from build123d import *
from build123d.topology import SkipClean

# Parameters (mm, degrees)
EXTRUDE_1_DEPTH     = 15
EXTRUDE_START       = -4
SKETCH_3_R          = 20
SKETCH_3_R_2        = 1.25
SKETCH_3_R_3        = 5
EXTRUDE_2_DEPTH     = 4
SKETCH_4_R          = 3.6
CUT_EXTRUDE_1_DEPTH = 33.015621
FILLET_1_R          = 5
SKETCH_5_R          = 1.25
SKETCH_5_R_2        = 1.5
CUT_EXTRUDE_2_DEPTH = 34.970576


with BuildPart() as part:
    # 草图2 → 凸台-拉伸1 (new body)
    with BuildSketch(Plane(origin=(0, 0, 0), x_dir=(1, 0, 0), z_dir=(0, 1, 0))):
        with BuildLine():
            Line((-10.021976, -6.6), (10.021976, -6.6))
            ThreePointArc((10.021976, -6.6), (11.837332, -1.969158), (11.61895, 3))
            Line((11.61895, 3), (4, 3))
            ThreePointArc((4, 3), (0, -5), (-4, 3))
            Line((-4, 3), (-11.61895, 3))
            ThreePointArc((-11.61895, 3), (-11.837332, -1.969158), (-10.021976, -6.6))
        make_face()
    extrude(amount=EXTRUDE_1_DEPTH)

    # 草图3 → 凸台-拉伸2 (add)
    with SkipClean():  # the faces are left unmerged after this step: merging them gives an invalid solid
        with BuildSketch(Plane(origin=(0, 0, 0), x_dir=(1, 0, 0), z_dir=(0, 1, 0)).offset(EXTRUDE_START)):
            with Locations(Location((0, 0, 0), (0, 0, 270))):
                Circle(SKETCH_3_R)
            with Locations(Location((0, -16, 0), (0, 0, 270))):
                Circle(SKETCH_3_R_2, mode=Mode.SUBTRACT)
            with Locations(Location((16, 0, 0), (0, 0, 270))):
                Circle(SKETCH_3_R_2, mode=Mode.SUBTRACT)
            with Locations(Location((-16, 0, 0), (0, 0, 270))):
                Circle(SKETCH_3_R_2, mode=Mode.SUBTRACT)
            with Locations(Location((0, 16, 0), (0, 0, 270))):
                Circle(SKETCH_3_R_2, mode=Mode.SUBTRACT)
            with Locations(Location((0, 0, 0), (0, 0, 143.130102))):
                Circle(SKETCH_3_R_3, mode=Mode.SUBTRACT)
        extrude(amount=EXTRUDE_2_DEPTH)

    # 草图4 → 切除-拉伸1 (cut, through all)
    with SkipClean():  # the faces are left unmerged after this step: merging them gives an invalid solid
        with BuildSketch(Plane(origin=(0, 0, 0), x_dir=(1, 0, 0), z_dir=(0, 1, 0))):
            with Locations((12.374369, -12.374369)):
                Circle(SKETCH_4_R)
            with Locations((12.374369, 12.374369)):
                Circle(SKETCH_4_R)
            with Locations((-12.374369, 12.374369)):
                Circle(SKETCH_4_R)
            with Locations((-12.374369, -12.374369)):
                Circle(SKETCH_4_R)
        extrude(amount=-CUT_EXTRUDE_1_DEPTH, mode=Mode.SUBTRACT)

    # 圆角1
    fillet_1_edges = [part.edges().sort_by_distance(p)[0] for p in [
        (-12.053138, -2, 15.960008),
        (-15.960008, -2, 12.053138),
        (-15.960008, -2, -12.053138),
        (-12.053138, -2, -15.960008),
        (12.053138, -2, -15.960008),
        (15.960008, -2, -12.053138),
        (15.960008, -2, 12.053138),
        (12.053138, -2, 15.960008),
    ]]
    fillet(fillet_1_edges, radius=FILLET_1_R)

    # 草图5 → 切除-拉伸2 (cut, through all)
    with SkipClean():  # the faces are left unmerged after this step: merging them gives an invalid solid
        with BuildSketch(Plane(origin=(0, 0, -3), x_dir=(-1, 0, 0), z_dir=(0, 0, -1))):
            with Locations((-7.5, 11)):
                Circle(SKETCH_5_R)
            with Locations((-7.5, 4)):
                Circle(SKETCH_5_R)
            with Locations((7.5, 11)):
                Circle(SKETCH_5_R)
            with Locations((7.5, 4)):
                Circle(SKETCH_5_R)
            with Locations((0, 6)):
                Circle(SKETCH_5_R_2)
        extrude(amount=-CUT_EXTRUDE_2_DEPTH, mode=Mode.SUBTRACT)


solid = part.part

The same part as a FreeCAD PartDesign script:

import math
import FreeCAD as App
import Part
import Sketcher

V = App.Vector


def edges_at(feature, points):
    """Names of the edges that pass closest to the given points."""
    edges = feature.Shape.Edges
    near = lambda p: min(range(len(edges)), key=lambda i: edges[i].distToShape(Part.Vertex(*p))[0])
    return sorted({f"Edge{near(p) + 1}" for p in points})

doc = App.newDocument("Part")
params = doc.addObject("Spreadsheet::Sheet", "Params")
for row, (alias, value) in enumerate([
    ("sketch1_radius", "5 mm"),
    ("pad1_length", "15 mm"),
    ("sketch2_diameter", "40 mm"),
    ("sketch2_diameter2", "10 mm"),
    ("sketch2_diameter3", "2.5 mm"),
    ("pad2_length", "4 mm"),
    ("sketch3_diameter", "7.2 mm"),
    ("fillet_radius", "5 mm"),
    ("sketch4_diameter", "3 mm"),
    ("sketch4_diameter2", "2.5 mm"),
], start=1):
    params.set(f"A{row}", alias)
    params.set(f"B{row}", "=" + value)
    params.setAlias(f"B{row}", alias)

body = doc.addObject("PartDesign::Body", "Body")

# Sketch on XZ plane
sketch1 = body.newObject("Sketcher::SketchObject", "Sketch")
sketch1.AttachmentSupport = (doc.getObject("XZ_Plane"), [""])
sketch1.MapMode = "FlatFace"
sketch1.addGeometry(Part.LineSegment(V(-10.021976, 6.6, 0), V(10.021976, 6.6, 0)), False)
sketch1.addGeometry(Part.ArcOfCircle(Part.Circle(V(0.000005, 0.000001, 0), V(0, 0, 1), 11.999995), math.radians(-14.477524), math.radians(33.367022)), False)
sketch1.addGeometry(Part.LineSegment(V(11.61895, -3, 0), V(4, -3, 0)), False)
sketch1.addGeometry(Part.ArcOfCircle(Part.Circle(V(0, 0, 0), V(0, 0, 1), 5), math.radians(-36.869898), math.radians(216.869898)), False)
sketch1.addGeometry(Part.LineSegment(V(-4, -3, 0), V(-11.61895, -3, 0)), False)
sketch1.addGeometry(Part.ArcOfCircle(Part.Circle(V(-0.000005, 0.000001, 0), V(0, 0, 1), 11.999995), math.radians(146.632978), math.radians(194.477524)), False)
sketch1.addConstraint(Sketcher.Constraint("Coincident", 0, 2, 1, 2))
sketch1.addConstraint(Sketcher.Constraint("Coincident", 1, 1, 2, 1))
sketch1.addConstraint(Sketcher.Constraint("Coincident", 2, 2, 3, 1))
sketch1.addConstraint(Sketcher.Constraint("Coincident", 3, 2, 4, 1))
sketch1.addConstraint(Sketcher.Constraint("Coincident", 4, 2, 5, 2))
sketch1.addConstraint(Sketcher.Constraint("Coincident", 5, 1, 0, 1))
sketch1.addConstraint(Sketcher.Constraint("Horizontal", 0))
sketch1.addConstraint(Sketcher.Constraint("Horizontal", 2))
sketch1.addConstraint(Sketcher.Constraint("Horizontal", 4))
sketch1.addConstraint(Sketcher.Constraint("Coincident", 1, 3, -1, 1))
sketch1.addConstraint(Sketcher.Constraint("Coincident", 3, 3, -1, 1))
sketch1.addConstraint(Sketcher.Constraint("Coincident", 5, 3, -1, 1))
sketch1.addConstraint(Sketcher.Constraint("Equal", 1, 5))
sketch1.addConstraint(Sketcher.Constraint("Horizontal", 2, 2, 3, 2))
sketch1.addConstraint(Sketcher.Constraint("Radius", 3, 5.0))
sketch1.addConstraint(Sketcher.Constraint("DistanceY", 1, 1, -1, 1, 3.0))
sketch1.addConstraint(Sketcher.Constraint("DistanceY", -1, 1, 0, 2, 6.6))
sketch1.addConstraint(Sketcher.Constraint("Radius", 1, 11.999995))
sketch1.setExpression("Constraints[14]", "Params.sketch1_radius")
pad1 = body.newObject("PartDesign::Pad", "Pad")
pad1.Profile = sketch1
pad1.setExpression("Length", "Params.pad1_length")
pad1.Reversed = True

# Sketch on XZ plane
sketch2 = body.newObject("Sketcher::SketchObject", "Sketch001")
sketch2.AttachmentSupport = (doc.getObject("XZ_Plane"), [""])
sketch2.MapMode = "FlatFace"
sketch2.AttachmentOffset = App.Placement(V(0, 0, 4), App.Rotation())
sketch2.addGeometry(Part.Circle(V(0, 0, 0), V(0, 0, 1), 20), False)
sketch2.addGeometry(Part.Circle(V(0, -16, 0), V(0, 0, 1), 1.25), False)
sketch2.addGeometry(Part.Circle(V(-16, 0, 0), V(0, 0, 1), 1.25), False)
sketch2.addGeometry(Part.Circle(V(16, 0, 0), V(0, 0, 1), 1.25), False)
sketch2.addGeometry(Part.Circle(V(0, 0, 0), V(0, 0, 1), 5), False)
sketch2.addGeometry(Part.Circle(V(0, 16, 0), V(0, 0, 1), 1.25), False)
sketch2.addConstraint(Sketcher.Constraint("Coincident", 0, 3, -1, 1))
sketch2.addConstraint(Sketcher.Constraint("Coincident", 4, 3, -1, 1))
sketch2.addConstraint(Sketcher.Constraint("Equal", 1, 2))
sketch2.addConstraint(Sketcher.Constraint("Equal", 2, 3))
sketch2.addConstraint(Sketcher.Constraint("Equal", 3, 5))
sketch2.addConstraint(Sketcher.Constraint("Symmetric", 2, 3, 3, 3, -1, 1))
sketch2.addConstraint(Sketcher.Constraint("Symmetric", 1, 3, 5, 3, -1, 1))
sketch2.addConstraint(Sketcher.Constraint("PointOnObject", 1, 3, -2))
sketch2.addConstraint(Sketcher.Constraint("PointOnObject", 2, 3, -1))
sketch2.addConstraint(Sketcher.Constraint("Diameter", 0, 40.0))
sketch2.addConstraint(Sketcher.Constraint("Diameter", 4, 10.0))
sketch2.addConstraint(Sketcher.Constraint("Diameter", 1, 2.5))
sketch2.addConstraint(Sketcher.Constraint("DistanceY", 1, 3, -1, 1, 16.0))
sketch2.addConstraint(Sketcher.Constraint("DistanceX", 2, 3, -1, 1, 16.0))
sketch2.setExpression("Constraints[9]", "Params.sketch2_diameter")
sketch2.setExpression("Constraints[10]", "Params.sketch2_diameter2")
sketch2.setExpression("Constraints[11]", "Params.sketch2_diameter3")
pad2 = body.newObject("PartDesign::Pad", "Pad001")
pad2.Profile = sketch2
pad2.setExpression("Length", "Params.pad2_length")
pad2.Reversed = True

# Sketch on XZ plane
sketch3 = body.newObject("Sketcher::SketchObject", "Sketch002")
sketch3.AttachmentSupport = (doc.getObject("XZ_Plane"), [""])
sketch3.MapMode = "FlatFace"
sketch3.addGeometry(Part.Circle(V(12.374369, 12.374369, 0), V(0, 0, 1), 3.6), False)
sketch3.addGeometry(Part.Circle(V(12.374369, -12.374369, 0), V(0, 0, 1), 3.6), False)
sketch3.addGeometry(Part.Circle(V(-12.374369, -12.374369, 0), V(0, 0, 1), 3.6), False)
sketch3.addGeometry(Part.Circle(V(-12.374369, 12.374369, 0), V(0, 0, 1), 3.6), False)
sketch3.addConstraint(Sketcher.Constraint("Equal", 0, 1))
sketch3.addConstraint(Sketcher.Constraint("Equal", 1, 2))
sketch3.addConstraint(Sketcher.Constraint("Equal", 2, 3))
sketch3.addConstraint(Sketcher.Constraint("Symmetric", 0, 3, 2, 3, -1, 1))
sketch3.addConstraint(Sketcher.Constraint("Symmetric", 1, 3, 3, 3, -1, 1))
sketch3.addConstraint(Sketcher.Constraint("Symmetric", 1, 3, 2, 3, -2))
sketch3.addConstraint(Sketcher.Constraint("Diameter", 0, 7.2))
sketch3.addConstraint(Sketcher.Constraint("DistanceX", -1, 1, 0, 3, 12.374369))
sketch3.addConstraint(Sketcher.Constraint("DistanceY", -1, 1, 0, 3, 12.374369))
sketch3.setExpression("Constraints[6]", "Params.sketch3_diameter")
pocket1 = body.newObject("PartDesign::Pocket", "Pocket")
pocket1.Profile = sketch3
pocket1.Type = "ThroughAll"
pocket1.Reversed = True
doc.recompute()

fillet = body.newObject("PartDesign::Fillet", "Fillet")
fillet.Base = (pocket1, edges_at(pocket1, [
    (-12.053, -2, 15.96),
    (-15.96, -2, 12.053),
    (-15.96, -2, -12.053),
    (-12.053, -2, -15.96),
    (12.053, -2, -15.96),
    (15.96, -2, -12.053),
    (15.96, -2, 12.053),
    (12.053, -2, 15.96),
]))
fillet.setExpression("Radius", "Params.fillet_radius")

# Sketch on XY plane
sketch4 = body.newObject("Sketcher::SketchObject", "Sketch003")
sketch4.AttachmentSupport = (doc.getObject("XY_Plane"), [""])
sketch4.MapMode = "FlatFace"
sketch4.AttachmentOffset = App.Placement(V(0, 0, -3), App.Rotation())
sketch4.addGeometry(Part.Circle(V(7.5, 11, 0), V(0, 0, 1), 1.25), False)
sketch4.addGeometry(Part.Circle(V(7.5, 4, 0), V(0, 0, 1), 1.25), False)
sketch4.addGeometry(Part.Circle(V(-7.5, 11, 0), V(0, 0, 1), 1.25), False)
sketch4.addGeometry(Part.Circle(V(-7.5, 4, 0), V(0, 0, 1), 1.25), False)
sketch4.addGeometry(Part.Circle(V(0, 6, 0), V(0, 0, 1), 1.5), False)
sketch4.addConstraint(Sketcher.Constraint("Equal", 0, 1))
sketch4.addConstraint(Sketcher.Constraint("Equal", 1, 2))
sketch4.addConstraint(Sketcher.Constraint("Equal", 2, 3))
sketch4.addConstraint(Sketcher.Constraint("Symmetric", 0, 3, 2, 3, -2))
sketch4.addConstraint(Sketcher.Constraint("Symmetric", 1, 3, 3, 3, -2))
sketch4.addConstraint(Sketcher.Constraint("PointOnObject", 4, 3, -2))
sketch4.addConstraint(Sketcher.Constraint("Vertical", 0, 3, 1, 3))
sketch4.addConstraint(Sketcher.Constraint("Diameter", 4, 3.0))
sketch4.addConstraint(Sketcher.Constraint("Diameter", 0, 2.5))
sketch4.addConstraint(Sketcher.Constraint("DistanceY", -1, 1, 0, 3, 11.0))
sketch4.addConstraint(Sketcher.Constraint("DistanceY", -1, 1, 1, 3, 4.0))
sketch4.addConstraint(Sketcher.Constraint("DistanceY", -1, 1, 4, 3, 6.0))
sketch4.addConstraint(Sketcher.Constraint("DistanceX", 2, 3, 0, 3, 15.0))
sketch4.setExpression("Constraints[7]", "Params.sketch4_diameter")
sketch4.setExpression("Constraints[8]", "Params.sketch4_diameter2")
pocket2 = body.newObject("PartDesign::Pocket", "Pocket001")
pocket2.Profile = sketch4
pocket2.Type = "ThroughAll"
pocket2.Reversed = True

doc.recompute()
